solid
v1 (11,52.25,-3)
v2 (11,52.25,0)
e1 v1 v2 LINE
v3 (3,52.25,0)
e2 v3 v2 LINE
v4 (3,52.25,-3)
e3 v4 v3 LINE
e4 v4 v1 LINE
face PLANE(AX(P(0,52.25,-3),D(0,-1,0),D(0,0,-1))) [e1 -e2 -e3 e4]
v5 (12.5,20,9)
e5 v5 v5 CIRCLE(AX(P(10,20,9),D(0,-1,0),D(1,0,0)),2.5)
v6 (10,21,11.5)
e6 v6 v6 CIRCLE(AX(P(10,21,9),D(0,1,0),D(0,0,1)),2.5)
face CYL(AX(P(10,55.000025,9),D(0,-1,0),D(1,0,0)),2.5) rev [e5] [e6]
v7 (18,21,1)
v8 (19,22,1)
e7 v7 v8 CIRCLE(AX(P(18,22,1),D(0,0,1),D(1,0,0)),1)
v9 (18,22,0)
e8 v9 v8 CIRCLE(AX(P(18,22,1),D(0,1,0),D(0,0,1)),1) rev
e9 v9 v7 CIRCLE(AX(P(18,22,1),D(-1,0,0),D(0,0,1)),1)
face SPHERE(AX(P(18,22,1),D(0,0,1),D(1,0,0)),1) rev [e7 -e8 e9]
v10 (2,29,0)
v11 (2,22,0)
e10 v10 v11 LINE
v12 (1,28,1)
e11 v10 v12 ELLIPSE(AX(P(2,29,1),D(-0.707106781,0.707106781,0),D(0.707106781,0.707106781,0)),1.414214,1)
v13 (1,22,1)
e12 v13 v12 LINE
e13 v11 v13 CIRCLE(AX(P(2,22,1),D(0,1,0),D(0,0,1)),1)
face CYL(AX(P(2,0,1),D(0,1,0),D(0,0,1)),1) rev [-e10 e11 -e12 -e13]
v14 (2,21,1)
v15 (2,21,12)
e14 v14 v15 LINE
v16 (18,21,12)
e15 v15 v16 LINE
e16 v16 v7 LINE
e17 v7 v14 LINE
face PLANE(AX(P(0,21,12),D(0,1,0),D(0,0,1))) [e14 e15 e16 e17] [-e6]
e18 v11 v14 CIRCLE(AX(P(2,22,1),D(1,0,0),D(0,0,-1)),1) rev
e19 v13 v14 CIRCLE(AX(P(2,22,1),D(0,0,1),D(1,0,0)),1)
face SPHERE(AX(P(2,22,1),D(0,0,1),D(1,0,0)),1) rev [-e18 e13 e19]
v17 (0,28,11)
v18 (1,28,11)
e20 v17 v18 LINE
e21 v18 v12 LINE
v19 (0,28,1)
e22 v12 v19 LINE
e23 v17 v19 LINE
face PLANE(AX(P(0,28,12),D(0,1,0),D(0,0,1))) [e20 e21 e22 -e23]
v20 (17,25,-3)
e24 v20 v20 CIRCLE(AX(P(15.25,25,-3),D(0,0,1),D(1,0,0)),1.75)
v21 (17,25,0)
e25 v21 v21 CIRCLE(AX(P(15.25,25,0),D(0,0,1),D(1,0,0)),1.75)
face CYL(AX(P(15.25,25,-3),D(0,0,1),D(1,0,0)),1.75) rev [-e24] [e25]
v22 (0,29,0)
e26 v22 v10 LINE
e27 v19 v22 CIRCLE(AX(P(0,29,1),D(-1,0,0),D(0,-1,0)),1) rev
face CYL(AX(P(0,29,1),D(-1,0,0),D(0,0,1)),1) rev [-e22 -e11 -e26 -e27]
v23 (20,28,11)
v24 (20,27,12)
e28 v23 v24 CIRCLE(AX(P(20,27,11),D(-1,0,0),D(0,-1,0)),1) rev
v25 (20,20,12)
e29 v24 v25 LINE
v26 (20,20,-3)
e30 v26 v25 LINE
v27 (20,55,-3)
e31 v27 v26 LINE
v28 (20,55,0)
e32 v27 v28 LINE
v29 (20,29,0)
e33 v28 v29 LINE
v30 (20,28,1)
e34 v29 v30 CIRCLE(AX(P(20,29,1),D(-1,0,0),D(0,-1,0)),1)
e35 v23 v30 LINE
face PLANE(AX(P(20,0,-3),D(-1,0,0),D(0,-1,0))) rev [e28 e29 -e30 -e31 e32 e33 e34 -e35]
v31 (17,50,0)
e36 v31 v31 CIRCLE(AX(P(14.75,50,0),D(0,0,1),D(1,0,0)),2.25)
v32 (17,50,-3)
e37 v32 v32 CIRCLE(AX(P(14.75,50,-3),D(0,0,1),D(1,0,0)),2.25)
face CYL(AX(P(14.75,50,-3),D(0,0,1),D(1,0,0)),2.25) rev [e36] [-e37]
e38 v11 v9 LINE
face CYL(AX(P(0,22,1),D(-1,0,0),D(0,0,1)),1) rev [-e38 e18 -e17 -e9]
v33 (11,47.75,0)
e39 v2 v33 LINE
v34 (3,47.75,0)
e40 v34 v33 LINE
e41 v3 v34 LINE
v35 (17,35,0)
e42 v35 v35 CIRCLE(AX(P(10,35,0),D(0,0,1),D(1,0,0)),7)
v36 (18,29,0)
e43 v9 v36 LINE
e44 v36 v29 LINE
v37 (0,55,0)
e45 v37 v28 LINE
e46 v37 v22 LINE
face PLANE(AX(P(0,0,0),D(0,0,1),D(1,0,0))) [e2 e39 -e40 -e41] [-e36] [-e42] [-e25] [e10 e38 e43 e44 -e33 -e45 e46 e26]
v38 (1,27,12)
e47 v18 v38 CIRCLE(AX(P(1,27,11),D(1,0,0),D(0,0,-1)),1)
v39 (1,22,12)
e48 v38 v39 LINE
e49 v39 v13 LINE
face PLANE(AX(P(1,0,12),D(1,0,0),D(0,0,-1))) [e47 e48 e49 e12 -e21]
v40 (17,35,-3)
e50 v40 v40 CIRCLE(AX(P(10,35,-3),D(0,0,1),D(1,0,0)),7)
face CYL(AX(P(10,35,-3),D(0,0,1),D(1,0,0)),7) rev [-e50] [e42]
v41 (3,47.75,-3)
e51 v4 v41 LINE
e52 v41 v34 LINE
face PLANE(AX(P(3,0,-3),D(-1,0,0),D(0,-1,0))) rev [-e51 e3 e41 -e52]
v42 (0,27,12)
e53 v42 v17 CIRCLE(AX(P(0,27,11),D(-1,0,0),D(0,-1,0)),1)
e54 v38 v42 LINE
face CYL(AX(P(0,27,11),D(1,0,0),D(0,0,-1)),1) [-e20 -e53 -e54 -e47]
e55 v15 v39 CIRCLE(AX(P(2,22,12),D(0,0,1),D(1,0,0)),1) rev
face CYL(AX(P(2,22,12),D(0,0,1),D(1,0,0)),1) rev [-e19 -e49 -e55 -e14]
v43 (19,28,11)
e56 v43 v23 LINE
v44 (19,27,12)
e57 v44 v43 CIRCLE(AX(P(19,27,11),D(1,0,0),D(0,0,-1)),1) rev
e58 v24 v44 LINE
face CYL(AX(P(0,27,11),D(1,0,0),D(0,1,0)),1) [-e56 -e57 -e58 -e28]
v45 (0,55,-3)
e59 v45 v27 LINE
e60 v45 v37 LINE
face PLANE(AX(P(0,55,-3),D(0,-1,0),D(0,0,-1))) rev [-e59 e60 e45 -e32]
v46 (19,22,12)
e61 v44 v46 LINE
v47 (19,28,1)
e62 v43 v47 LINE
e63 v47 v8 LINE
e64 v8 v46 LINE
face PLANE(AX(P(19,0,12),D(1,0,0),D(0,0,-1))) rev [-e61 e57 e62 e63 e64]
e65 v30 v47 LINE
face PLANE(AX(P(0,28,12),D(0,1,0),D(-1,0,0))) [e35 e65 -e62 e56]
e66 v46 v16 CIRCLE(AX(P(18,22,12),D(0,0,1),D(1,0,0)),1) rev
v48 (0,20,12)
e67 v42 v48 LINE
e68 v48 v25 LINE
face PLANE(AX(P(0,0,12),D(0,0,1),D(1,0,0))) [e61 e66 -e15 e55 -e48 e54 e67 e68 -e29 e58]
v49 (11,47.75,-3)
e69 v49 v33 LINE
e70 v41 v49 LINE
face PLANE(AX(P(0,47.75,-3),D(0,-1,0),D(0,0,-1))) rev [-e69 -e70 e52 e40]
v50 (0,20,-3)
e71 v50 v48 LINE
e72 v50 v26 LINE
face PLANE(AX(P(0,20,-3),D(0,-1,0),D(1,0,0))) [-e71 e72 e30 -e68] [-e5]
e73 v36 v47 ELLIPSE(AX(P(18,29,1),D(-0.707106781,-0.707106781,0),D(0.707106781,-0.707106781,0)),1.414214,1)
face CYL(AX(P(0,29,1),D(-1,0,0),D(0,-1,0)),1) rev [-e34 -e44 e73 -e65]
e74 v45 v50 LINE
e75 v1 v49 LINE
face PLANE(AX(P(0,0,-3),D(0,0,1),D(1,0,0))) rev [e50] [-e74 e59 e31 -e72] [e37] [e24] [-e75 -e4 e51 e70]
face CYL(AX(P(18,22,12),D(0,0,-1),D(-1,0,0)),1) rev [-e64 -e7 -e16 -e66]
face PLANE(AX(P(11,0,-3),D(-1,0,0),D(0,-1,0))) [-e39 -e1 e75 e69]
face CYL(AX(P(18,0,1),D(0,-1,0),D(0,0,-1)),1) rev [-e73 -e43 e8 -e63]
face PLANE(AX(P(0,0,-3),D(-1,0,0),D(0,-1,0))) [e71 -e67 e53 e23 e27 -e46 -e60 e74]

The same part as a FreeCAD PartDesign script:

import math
import FreeCAD as App
import Part
import Sketcher
from FreeCAD import Vector


def edges_at(feature, points):
    """Names of the edges that pass closest to the given points."""
    edges = feature.Shape.Edges
    near = lambda p: min(range(len(edges)), key=lambda i: edges[i].distToShape(Part.Vertex(*p))[0])
    return sorted({f"Edge{near(p) + 1}" for p in points})

doc = App.newDocument("Part")
body = doc.addObject("PartDesign::Body", "Body")

sketch1 = body.newObject("Sketcher::SketchObject", "Sketch")
sketch1.AttachmentSupport = (doc.getObject("XY_Plane"), [""])
sketch1.MapMode = "FlatFace"
sketch1.addGeometry([
    Part.LineSegment(Vector(0, 20, 0), Vector(20, 20, 0)),
    Part.LineSegment(Vector(20, 20, 0), Vector(20, 55, 0)),
    Part.LineSegment(Vector(20, 55, 0), Vector(0, 55, 0)),
    Part.LineSegment(Vector(0, 55, 0), Vector(0, 20, 0)),
    Part.Circle(Vector(15.2, 25, 0), Vector(0, 0, 1), 1.8),
    Part.LineSegment(Vector(11, 47.8, 0), Vector(3, 47.8, 0)),
    Part.LineSegment(Vector(3, 47.8, 0), Vector(3, 52.2, 0)),
    Part.LineSegment(Vector(3, 52.2, 0), Vector(11, 52.2, 0)),
    Part.LineSegment(Vector(11, 52.2, 0), Vector(11, 47.8, 0)),
    Part.Circle(Vector(14.8, 50, 0), Vector(0, 0, 1), 2.2),
    Part.ArcOfCircle(Part.Circle(Vector(10, 35, 0), Vector(0, 0, 1), 7), math.radians(-180), math.radians(-90)),
    Part.ArcOfCircle(Part.Circle(Vector(10, 35, 0), Vector(0, 0, 1), 7), math.radians(90), math.radians(180)),
    Part.ArcOfCircle(Part.Circle(Vector(10, 35, 0), Vector(0, 0, 1), 7), math.radians(0), math.radians(90)),
    Part.ArcOfCircle(Part.Circle(Vector(10, 35, 0), Vector(0, 0, 1), 7), math.radians(-90), math.radians(0)),
], False)
sketch1.addConstraint([
    Sketcher.Constraint("Coincident", 0, 2, 1, 1),
    Sketcher.Constraint("Coincident", 1, 2, 2, 1),
    Sketcher.Constraint("Coincident", 2, 2, 3, 1),
    Sketcher.Constraint("Coincident", 3, 2, 0, 1),
    Sketcher.Constraint("Coincident", 5, 2, 6, 1),
    Sketcher.Constraint("Coincident", 6, 2, 7, 1),
    Sketcher.Constraint("Coincident", 7, 2, 8, 1),
    Sketcher.Constraint("Coincident", 8, 2, 5, 1),
    Sketcher.Constraint("Tangent", 10, 1, 11, 2),
    Sketcher.Constraint("Tangent", 11, 1, 12, 2),
    Sketcher.Constraint("Tangent", 12, 1, 13, 2),
    Sketcher.Constraint("Tangent", 13, 1, 10, 2),
    Sketcher.Constraint("Horizontal", 0),
    Sketcher.Constraint("Vertical", 1),
    Sketcher.Constraint("Horizontal", 2),
    Sketcher.Constraint("Vertical", 3),
    Sketcher.Constraint("Horizontal", 5),
    Sketcher.Constraint("Vertical", 6),
    Sketcher.Constraint("Horizontal", 7),
    Sketcher.Constraint("Vertical", 8),
    Sketcher.Constraint("Equal", 10, 11),
    Sketcher.Constraint("PointOnObject", 2, 2, -2),
    Sketcher.Constraint("Horizontal", 13, 3, 10, 1),
    Sketcher.Constraint("Horizontal", 10, 1, 12, 1),
    Sketcher.Constraint("Vertical", 6, 2, 10, 1),
    Sketcher.Constraint("Vertical", 13, 3, 11, 1),
    Sketcher.Constraint("Vertical", 11, 1, 13, 1),
    Sketcher.Constraint("Radius", 10, 7.0),
    Sketcher.Constraint("Diameter", 4, 3.5),
    Sketcher.Constraint("Diameter", 9, 4.5),
    Sketcher.Constraint("DistanceX", 0, 1, 0, 2, 20.0),
    Sketcher.Constraint("DistanceX", 5, 2, 5, 1, 8.0),
    Sketcher.Constraint("DistanceY", 1, 1, 1, 2, 35.0),
    Sketcher.Constraint("DistanceY", 6, 1, 6, 2, 4.5),
    Sketcher.Constraint("DistanceY", -1, 1, 4, 3, 25.0),
    Sketcher.Constraint("DistanceY", -1, 1, 9, 3, 50.0),
    Sketcher.Constraint("DistanceX", -1, 1, 10, 3, 10.0),
    Sketcher.Constraint("DistanceY", -1, 1, 10, 3, 35.0),
    Sketcher.Constraint("DistanceY", -1, 1, 0, 2, 20.0),
    Sketcher.Constraint("DistanceX", 9, 3, 4, 3, 0.5),
    Sketcher.Constraint("DistanceX", -1, 1, 4, 3, 15.25),
    Sketcher.Constraint("DistanceY", -1, 1, 5, 2, 47.75),
])
pad1 = body.newObject("PartDesign::Pad", "Pad")
pad1.Profile = sketch1
pad1.Length = 3
pad1.Reversed = True

sketch2 = body.newObject("Sketcher::SketchObject", "Sketch001")
sketch2.AttachmentSupport = (doc.getObject("XY_Plane"), [""])
sketch2.MapMode = "FlatFace"
sketch2.addGeometry([
    Part.LineSegment(Vector(20, 20, 0), Vector(20, 28, 0)),
    Part.LineSegment(Vector(20, 28, 0), Vector(19, 28, 0)),
    Part.LineSegment(Vector(19, 28, 0), Vector(19, 21, 0)),
    Part.LineSegment(Vector(19, 21, 0), Vector(1, 21, 0)),
    Part.LineSegment(Vector(1, 21, 0), Vector(1, 28, 0)),
    Part.LineSegment(Vector(1, 28, 0), Vector(0, 28, 0)),
    Part.LineSegment(Vector(0, 28, 0), Vector(0, 20, 0)),
    Part.LineSegment(Vector(0, 20, 0), Vector(20, 20, 0)),
], False)
sketch2.addConstraint([
    Sketcher.Constraint("Coincident", 0, 2, 1, 1),
    Sketcher.Constraint("Coincident", 1, 2, 2, 1),
    Sketcher.Constraint("Coincident", 2, 2, 3, 1),
    Sketcher.Constraint("Coincident", 3, 2, 4, 1),
    Sketcher.Constraint("Coincident", 4, 2, 5, 1),
    Sketcher.Constraint("Coincident", 5, 2, 6, 1),
    Sketcher.Constraint("Coincident", 6, 2, 7, 1),
    Sketcher.Constraint("Coincident", 7, 2, 0, 1),
    Sketcher.Constraint("Vertical", 0),
    Sketcher.Constraint("Horizontal", 1),
    Sketcher.Constraint("Vertical", 2),
    Sketcher.Constraint("Horizontal", 3),
    Sketcher.Constraint("Vertical", 4),
    Sketcher.Constraint("Horizontal", 5),
    Sketcher.Constraint("Vertical", 6),
    Sketcher.Constraint("Horizontal", 7),
    Sketcher.Constraint("PointOnObject", 5, 2, -2),
    Sketcher.Constraint("Horizontal", 1, 2, 4, 2),
    Sketcher.Constraint("Equal", 1, 5),
    Sketcher.Constraint("DistanceX", 1, 2, 1, 1, 1.0),
    Sketcher.Constraint("DistanceX", 3, 2, 3, 1, 18.0),
    Sketcher.Constraint("DistanceY", 0, 1, 0, 2, 8.0),
    Sketcher.Constraint("DistanceY", 2, 2, 2, 1, 7.0),
    Sketcher.Constraint("DistanceY", -1, 1, 0, 2, 28.0),
])
pad2 = body.newObject("PartDesign::Pad", "Pad001")
pad2.Profile = sketch2
pad2.Length = 12

sketch3 = body.newObject("Sketcher::SketchObject", "Sketch002")
sketch3.AttachmentSupport = (doc.getObject("XZ_Plane"), [""])
sketch3.MapMode = "FlatFace"
sketch3.AttachmentOffset = App.Placement(Vector(0, 0, -20), App.Rotation())
sketch3.addGeometry(Part.Circle(Vector(10, 9, 0), Vector(0, 0, 1), 2.5), False)
sketch3.addConstraint([
    Sketcher.Constraint("Diameter", 0, 5.0),
    Sketcher.Constraint("DistanceX", -1, 1, 0, 3, 10.0),
    Sketcher.Constraint("DistanceY", -1, 1, 0, 3, 9.0),
])
pocket1 = body.newObject("PartDesign::Pocket", "Pocket")
pocket1.Profile = sketch3
pocket1.Type = "ThroughAll"
doc.recompute()

fillet = body.newObject("PartDesign::Fillet", "Fillet")
fillet.Base = (pocket1, edges_at(pocket1, [
    (19.5, 28, 12),
    (0.5, 28, 12),
    (1, 24.5, 0),
    (19, 24.5, 0),
    (19, 21, 6),
    (10, 21, 0),
    (1, 21, 6),
    (19.5, 28, 0),
    (0.5, 28, 0),
]))
fillet.Radius = 1

doc.recompute()
